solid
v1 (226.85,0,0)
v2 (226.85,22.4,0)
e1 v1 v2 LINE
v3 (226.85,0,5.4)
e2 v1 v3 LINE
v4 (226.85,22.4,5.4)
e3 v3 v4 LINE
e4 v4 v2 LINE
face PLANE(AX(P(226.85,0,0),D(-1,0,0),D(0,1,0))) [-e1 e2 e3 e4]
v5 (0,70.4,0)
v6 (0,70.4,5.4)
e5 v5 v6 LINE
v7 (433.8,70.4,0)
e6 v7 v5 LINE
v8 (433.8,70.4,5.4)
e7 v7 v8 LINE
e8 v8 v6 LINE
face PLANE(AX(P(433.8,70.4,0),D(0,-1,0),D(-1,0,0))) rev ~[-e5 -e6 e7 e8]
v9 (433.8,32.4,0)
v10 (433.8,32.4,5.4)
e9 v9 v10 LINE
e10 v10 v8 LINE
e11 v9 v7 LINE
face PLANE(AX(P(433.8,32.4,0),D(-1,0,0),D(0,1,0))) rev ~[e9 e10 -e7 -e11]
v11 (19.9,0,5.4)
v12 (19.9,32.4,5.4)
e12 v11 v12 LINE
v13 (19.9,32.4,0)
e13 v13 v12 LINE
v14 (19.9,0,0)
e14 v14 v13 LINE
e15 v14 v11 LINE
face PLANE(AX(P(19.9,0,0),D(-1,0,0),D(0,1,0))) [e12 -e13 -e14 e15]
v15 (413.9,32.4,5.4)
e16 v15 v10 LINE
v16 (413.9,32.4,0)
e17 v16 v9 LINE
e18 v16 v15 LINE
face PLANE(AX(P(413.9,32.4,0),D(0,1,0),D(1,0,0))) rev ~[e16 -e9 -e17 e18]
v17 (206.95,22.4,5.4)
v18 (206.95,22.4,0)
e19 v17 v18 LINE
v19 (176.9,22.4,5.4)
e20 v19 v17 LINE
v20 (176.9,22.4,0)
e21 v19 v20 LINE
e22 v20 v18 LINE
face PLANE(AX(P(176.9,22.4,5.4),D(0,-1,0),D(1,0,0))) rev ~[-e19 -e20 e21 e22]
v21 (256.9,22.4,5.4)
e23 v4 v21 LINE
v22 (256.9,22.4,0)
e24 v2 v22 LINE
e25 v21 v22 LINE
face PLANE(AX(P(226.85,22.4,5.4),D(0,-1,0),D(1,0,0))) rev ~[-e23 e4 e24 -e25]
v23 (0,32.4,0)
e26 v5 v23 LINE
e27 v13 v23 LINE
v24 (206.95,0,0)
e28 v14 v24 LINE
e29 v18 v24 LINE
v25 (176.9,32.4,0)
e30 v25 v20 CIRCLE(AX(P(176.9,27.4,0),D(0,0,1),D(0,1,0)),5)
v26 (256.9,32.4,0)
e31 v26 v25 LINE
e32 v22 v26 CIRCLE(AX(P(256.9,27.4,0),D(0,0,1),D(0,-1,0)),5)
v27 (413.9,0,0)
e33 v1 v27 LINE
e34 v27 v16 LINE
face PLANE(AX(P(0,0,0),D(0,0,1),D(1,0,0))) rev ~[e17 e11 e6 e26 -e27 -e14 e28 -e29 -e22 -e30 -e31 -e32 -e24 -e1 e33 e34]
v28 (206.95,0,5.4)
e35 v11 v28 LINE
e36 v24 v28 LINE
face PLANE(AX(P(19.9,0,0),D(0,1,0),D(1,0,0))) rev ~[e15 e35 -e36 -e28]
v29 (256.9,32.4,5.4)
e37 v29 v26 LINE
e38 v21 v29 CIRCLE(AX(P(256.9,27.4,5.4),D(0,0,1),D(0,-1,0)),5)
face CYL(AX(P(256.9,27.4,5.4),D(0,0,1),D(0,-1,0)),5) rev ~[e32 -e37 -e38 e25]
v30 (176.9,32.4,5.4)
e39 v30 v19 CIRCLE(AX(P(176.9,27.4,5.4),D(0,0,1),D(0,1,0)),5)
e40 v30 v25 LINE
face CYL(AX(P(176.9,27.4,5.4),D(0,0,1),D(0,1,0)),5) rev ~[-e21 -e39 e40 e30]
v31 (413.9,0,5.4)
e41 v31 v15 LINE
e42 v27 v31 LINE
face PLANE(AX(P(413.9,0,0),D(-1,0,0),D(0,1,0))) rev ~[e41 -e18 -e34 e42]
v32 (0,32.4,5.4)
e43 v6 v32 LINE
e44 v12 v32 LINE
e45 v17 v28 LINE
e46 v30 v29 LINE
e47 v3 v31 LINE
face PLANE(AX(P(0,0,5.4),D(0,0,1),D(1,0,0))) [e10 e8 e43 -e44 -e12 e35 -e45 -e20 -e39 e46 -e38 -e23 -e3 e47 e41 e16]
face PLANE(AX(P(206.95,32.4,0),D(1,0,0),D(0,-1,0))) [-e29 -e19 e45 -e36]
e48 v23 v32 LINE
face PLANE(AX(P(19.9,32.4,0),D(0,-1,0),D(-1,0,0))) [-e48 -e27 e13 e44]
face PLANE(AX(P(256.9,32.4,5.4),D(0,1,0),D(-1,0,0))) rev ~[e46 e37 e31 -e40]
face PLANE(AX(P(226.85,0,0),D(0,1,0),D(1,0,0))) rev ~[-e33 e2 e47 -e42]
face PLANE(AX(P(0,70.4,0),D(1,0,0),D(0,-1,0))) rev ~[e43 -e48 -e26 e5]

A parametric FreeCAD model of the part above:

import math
import FreeCAD as App
import Part
import Sketcher

V = App.Vector

doc = App.newDocument("Part")
params = doc.addObject("Spreadsheet::Sheet", "Params")
for row, (alias, value) in enumerate([
    ("sketch1_width", "19.9 mm"),
    ("sketch1_width2", "433.8 mm"),
    ("sketch1_height", "32.4 mm"),
    ("pad1_length", "5.4 mm"),
    ("sketch2_radius", "5 mm"),
    ("sketch2_width", "30.05 mm"),
    ("pocket1_length", "25 mm"),
], start=1):
    params.set(f"A{row}", alias)
    params.set(f"B{row}", "=" + value)
    params.setAlias(f"B{row}", alias)

body = doc.addObject("PartDesign::Body", "Body")

# Sketch on XY plane
sketch1 = body.newObject("Sketcher::SketchObject", "Sketch")
sketch1.AttachmentSupport = (doc.getObject("XY_Plane"), [""])
sketch1.MapMode = "FlatFace"
sketch1.addGeometry([
    Part.LineSegment(V(20, 32, 0), V(20, 0, 0)),  # 0
    Part.LineSegment(V(20, 0, 0), V(207, 0, 0)),  # 1
    Part.LineSegment(V(207, 0, 0), V(207, 32, 0)),  # 2
    Part.LineSegment(V(207, 32, 0), V(227, 32, 0)),  # 3
    Part.LineSegment(V(227, 32, 0), V(227, 0, 0)),  # 4
    Part.LineSegment(V(227, 0, 0), V(414, 0, 0)),  # 5
    Part.LineSegment(V(414, 0, 0), V(414, 32, 0)),  # 6
    Part.LineSegment(V(414, 32, 0), V(434, 32, 0)),  # 7
    Part.LineSegment(V(434, 32, 0), V(434, 70, 0)),  # 8
    Part.LineSegment(V(434, 70, 0), V(0, 70, 0)),  # 9
    Part.LineSegment(V(0, 70, 0), V(0, 32, 0)),  # 10
    Part.LineSegment(V(0, 32, 0), V(20, 32, 0)),  # 11
], False)
sketch1.addConstraint([
    Sketcher.Constraint("Coincident", 0, 2, 1, 1),
    Sketcher.Constraint("Coincident", 1, 2, 2, 1),
    Sketcher.Constraint("Coincident", 2, 2, 3, 1),
    Sketcher.Constraint("Coincident", 3, 2, 4, 1),
    Sketcher.Constraint("Coincident", 4, 2, 5, 1),
    Sketcher.Constraint("Coincident", 5, 2, 6, 1),
    Sketcher.Constraint("Coincident", 6, 2, 7, 1),
    Sketcher.Constraint("Coincident", 7, 2, 8, 1),
    Sketcher.Constraint("Coincident", 8, 2, 9, 1),
    Sketcher.Constraint("Coincident", 9, 2, 10, 1),
    Sketcher.Constraint("Coincident", 10, 2, 11, 1),
    Sketcher.Constraint("Coincident", 11, 2, 0, 1),
    Sketcher.Constraint("Vertical", 0),
    Sketcher.Constraint("Horizontal", 1),
    Sketcher.Constraint("Vertical", 2),
    Sketcher.Constraint("Horizontal", 3),
    Sketcher.Constraint("Vertical", 4),
    Sketcher.Constraint("Horizontal", 5),
    Sketcher.Constraint("Vertical", 6),
    Sketcher.Constraint("Horizontal", 7),
    Sketcher.Constraint("Vertical", 8),
    Sketcher.Constraint("Horizontal", 9),
    Sketcher.Constraint("Vertical", 10),
    Sketcher.Constraint("Horizontal", 11),
    Sketcher.Constraint("PointOnObject", 0, 2, -1),
    Sketcher.Constraint("PointOnObject", 4, 2, -1),
    Sketcher.Constraint("PointOnObject", 9, 2, -2),
    Sketcher.Constraint("Horizontal", 3, 2, 6, 2),
    Sketcher.Constraint("Horizontal", 7, 2, 10, 2),
    Sketcher.Constraint("Equal", 1, 5),
    Sketcher.Constraint("Equal", 3, 7),
    Sketcher.Constraint("Equal", 7, 11),
    Sketcher.Constraint("DistanceX", 3, 1, 3, 2, 19.9),
    Sketcher.Constraint("DistanceX", 9, 2, 9, 1, 433.8),
    Sketcher.Constraint("DistanceY", 0, 2, 0, 1, 32.4),
    Sketcher.Constraint("DistanceY", -1, 1, 8, 2, 70.4),
])
sketch1.setExpression("Constraints[32]", "Params.sketch1_width")
sketch1.setExpression("Constraints[33]", "Params.sketch1_width2")
sketch1.setExpression("Constraints[34]", "Params.sketch1_height")
pad1 = body.newObject("PartDesign::Pad", "Pad")
pad1.Profile = sketch1
pad1.setExpression("Length", "Params.pad1_length")

# Sketch on XY plane
sketch2 = body.newObject("Sketcher::SketchObject", "Sketch001")
sketch2.AttachmentSupport = (doc.getObject("XY_Plane"), [""])
sketch2.MapMode = "FlatFace"
sketch2.AttachmentOffset = App.Placement(V(0, 0, 5.4), App.Rotation())
sketch2.addGeometry([
    Part.LineSegment(V(227, 32, 0), V(227, 22, 0)),  # 0
    Part.LineSegment(V(227, 22, 0), V(257, 22, 0)),  # 1
    Part.ArcOfCircle(Part.Circle(V(257, 27, 0), V(0, 0, 1), 5), math.radians(-90), math.radians(90)),  # 2
    Part.LineSegment(V(257, 32, 0), V(227, 32, 0)),  # 3
    Part.LineSegment(V(177, 22, 0), V(207, 22, 0)),  # 4
    Part.LineSegment(V(207, 22, 0), V(207, 32, 0)),  # 5
    Part.LineSegment(V(207, 32, 0), V(177, 32, 0)),  # 6
    Part.ArcOfCircle(Part.Circle(V(177, 27, 0), V(0, 0, 1), 5), math.radians(90), math.radians(270)),  # 7
], False)
sketch2.addConstraint([
    Sketcher.Constraint("Coincident", 0, 2, 1, 1),
    Sketcher.Constraint("Tangent", 1, 2, 2, 1),
    Sketcher.Constraint("Tangent", 2, 2, 3, 1),
    Sketcher.Constraint("Coincident", 3, 2, 0, 1),
    Sketcher.Constraint("Coincident", 4, 2, 5, 1),
    Sketcher.Constraint("Coincident", 5, 2, 6, 1),
    Sketcher.Constraint("Tangent", 6, 2, 7, 1),
    Sketcher.Constraint("Tangent", 7, 2, 4, 1),
    Sketcher.Constraint("Vertical", 0),
    Sketcher.Constraint("Horizontal", 1),
    Sketcher.Constraint("Horizontal", 3),
    Sketcher.Constraint("Horizontal", 4),
    Sketcher.Constraint("Vertical", 5),
    Sketcher.Constraint("Horizontal", 6),
    Sketcher.Constraint("Equal", 2, 7),
    Sketcher.Constraint("Horizontal", 2, 3, 7, 3),
    Sketcher.Constraint("Equal", 3, 4),
    Sketcher.Constraint("Radius", 2, 5.0),
    Sketcher.Constraint("DistanceX", 7, 3, 2, 3, 80.0),
    Sketcher.Constraint("DistanceX", 1, 1, 1, 2, 30.05),
    Sketcher.Constraint("DistanceX", -1, 1, 2, 3, 256.9),
    Sketcher.Constraint("DistanceY", -1, 1, 2, 3, 27.4),
])
sketch2.setExpression("Constraints[17]", "Params.sketch2_radius")
sketch2.setExpression("Constraints[19]", "Params.sketch2_width")
pocket1 = body.newObject("PartDesign::Pocket", "Pocket")
pocket1.Profile = sketch2
pocket1.setExpression("Length", "Params.pocket1_length")

doc.recompute()
